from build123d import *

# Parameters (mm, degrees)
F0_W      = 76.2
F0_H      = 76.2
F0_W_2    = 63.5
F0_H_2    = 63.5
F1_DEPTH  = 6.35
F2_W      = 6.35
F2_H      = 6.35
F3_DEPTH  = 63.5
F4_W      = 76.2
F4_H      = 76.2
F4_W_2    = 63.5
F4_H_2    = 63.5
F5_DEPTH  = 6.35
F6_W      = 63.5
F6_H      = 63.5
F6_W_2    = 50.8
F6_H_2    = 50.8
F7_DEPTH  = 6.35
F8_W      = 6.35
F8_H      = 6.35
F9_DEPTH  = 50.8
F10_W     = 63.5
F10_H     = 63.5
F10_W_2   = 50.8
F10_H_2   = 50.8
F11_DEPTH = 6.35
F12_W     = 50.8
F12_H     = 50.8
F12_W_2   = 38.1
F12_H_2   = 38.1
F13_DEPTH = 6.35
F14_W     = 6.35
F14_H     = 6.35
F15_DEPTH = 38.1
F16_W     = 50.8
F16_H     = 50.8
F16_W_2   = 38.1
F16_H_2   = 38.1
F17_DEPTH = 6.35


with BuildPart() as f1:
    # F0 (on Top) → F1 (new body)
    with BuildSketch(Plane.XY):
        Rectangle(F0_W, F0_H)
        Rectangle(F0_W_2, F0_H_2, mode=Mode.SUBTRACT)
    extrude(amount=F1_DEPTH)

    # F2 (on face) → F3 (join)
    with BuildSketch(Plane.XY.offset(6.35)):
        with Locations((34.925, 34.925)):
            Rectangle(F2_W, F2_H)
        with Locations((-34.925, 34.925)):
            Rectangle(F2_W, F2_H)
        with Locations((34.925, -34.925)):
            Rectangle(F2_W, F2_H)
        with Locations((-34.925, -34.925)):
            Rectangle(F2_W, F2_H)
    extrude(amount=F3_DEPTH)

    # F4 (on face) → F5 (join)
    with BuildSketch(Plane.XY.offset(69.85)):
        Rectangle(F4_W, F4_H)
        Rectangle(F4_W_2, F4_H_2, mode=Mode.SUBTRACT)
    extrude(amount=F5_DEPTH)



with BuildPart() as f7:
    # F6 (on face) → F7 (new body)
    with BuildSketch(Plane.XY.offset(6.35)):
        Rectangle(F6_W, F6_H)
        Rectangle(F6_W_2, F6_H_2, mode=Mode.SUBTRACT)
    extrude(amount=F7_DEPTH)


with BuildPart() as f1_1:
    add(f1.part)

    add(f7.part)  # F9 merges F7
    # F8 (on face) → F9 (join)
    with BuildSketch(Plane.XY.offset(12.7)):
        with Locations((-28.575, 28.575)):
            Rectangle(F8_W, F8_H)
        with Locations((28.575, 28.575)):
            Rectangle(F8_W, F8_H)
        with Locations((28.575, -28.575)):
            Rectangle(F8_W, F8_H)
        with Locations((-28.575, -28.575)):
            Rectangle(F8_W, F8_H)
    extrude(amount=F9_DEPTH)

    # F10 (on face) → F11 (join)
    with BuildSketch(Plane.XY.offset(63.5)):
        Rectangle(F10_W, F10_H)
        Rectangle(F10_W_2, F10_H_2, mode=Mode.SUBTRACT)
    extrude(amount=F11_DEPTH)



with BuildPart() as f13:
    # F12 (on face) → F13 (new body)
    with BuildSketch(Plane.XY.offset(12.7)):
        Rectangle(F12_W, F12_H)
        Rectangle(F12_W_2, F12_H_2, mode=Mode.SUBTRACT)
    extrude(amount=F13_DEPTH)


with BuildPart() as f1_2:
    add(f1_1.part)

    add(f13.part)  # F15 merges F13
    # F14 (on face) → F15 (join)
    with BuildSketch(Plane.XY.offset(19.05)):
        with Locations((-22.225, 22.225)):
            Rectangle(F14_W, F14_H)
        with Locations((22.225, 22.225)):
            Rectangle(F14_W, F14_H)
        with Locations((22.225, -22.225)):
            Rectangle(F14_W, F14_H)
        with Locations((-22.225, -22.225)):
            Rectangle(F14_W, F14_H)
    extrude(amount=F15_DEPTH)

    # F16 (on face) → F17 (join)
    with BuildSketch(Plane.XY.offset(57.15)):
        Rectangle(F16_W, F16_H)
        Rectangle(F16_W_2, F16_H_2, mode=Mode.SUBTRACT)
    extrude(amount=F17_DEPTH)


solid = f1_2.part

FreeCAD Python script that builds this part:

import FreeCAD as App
import Part
import Sketcher

V = App.Vector
Q = App.Units.Quantity


def add_polygon(sketch, points):
    """Adds a closed chain of lines whose ends are joined by coincident constraints."""
    first, n = sketch.GeometryCount, len(points)
    for a, b in zip(points, points[1:] + points[:1]):
        sketch.addGeometry(Part.LineSegment(App.Vector(*a, 0), App.Vector(*b, 0)), False)
    for i in range(n):
        sketch.addConstraint(Sketcher.Constraint("Coincident", first + i, 2, first + (i + 1) % n, 1))

doc = App.newDocument("Part")
body = doc.addObject("PartDesign::Body", "Body")

# Sketch on XY plane
sketch1 = body.newObject("Sketcher::SketchObject", "Sketch")
sketch1.AttachmentSupport = (doc.getObject("XY_Plane"), [""])
sketch1.MapMode = "FlatFace"
add_polygon(sketch1, [(-38.1, 38.1), (-38.1, -38.1), (38.1, -38.1), (38.1, 38.1)])  # lines 0-3
add_polygon(sketch1, [(31.75, -31.75), (-31.75, -31.75), (-31.75, 31.75), (31.75, 31.75)])  # lines 4-7
sketch1.addConstraint(Sketcher.Constraint("Vertical", 0))
sketch1.addConstraint(Sketcher.Constraint("Horizontal", 1))
sketch1.addConstraint(Sketcher.Constraint("Vertical", 2))
sketch1.addConstraint(Sketcher.Constraint("Horizontal", 3))
sketch1.addConstraint(Sketcher.Constraint("Horizontal", 4))
sketch1.addConstraint(Sketcher.Constraint("Vertical", 5))
sketch1.addConstraint(Sketcher.Constraint("Horizontal", 6))
sketch1.addConstraint(Sketcher.Constraint("Vertical", 7))
sketch1.addConstraint(Sketcher.Constraint("Symmetric", 0, 2, 2, 2, -1, 1))
sketch1.addConstraint(Sketcher.Constraint("Symmetric", 4, 2, 6, 2, -1, 1))
sketch1.addConstraint(Sketcher.Constraint("Equal", 3, 0))
sketch1.addConstraint(Sketcher.Constraint("Equal", 6, 5))
sketch1.addConstraint(Sketcher.Constraint("DistanceX", 1, 1, 1, 2, Q("3 in")))
sketch1.addConstraint(Sketcher.Constraint("DistanceX", 4, 2, 4, 1, Q("2.5 in")))
pad1 = body.newObject("PartDesign::Pad", "Pad")
pad1.Profile = sketch1
pad1.Length = Q("0.25 in")

# Sketch on XY plane
sketch2 = body.newObject("Sketcher::SketchObject", "Sketch001")
sketch2.AttachmentSupport = (doc.getObject("XY_Plane"), [""])
sketch2.MapMode = "FlatFace"
sketch2.AttachmentOffset = App.Placement(V(0, 0, 0.25 * 25.4), App.Rotation())
add_polygon(sketch2, [(31.75, 38.1), (31.75, 31.75), (38.1, 31.75), (38.1, 38.1)])  # lines 0-3
add_polygon(sketch2, [(-38.1, 38.1), (-38.1, 31.75), (-31.75, 31.75), (-31.75, 38.1)])  # lines 4-7
add_polygon(sketch2, [(31.75, -31.75), (31.75, -38.1), (38.1, -38.1), (38.1, -31.75)])  # lines 8-11
add_polygon(sketch2, [(-38.1, -31.75), (-38.1, -38.1), (-31.75, -38.1), (-31.75, -31.75)])  # lines 12-15
sketch2.addConstraint(Sketcher.Constraint("Vertical", 0))
sketch2.addConstraint(Sketcher.Constraint("Horizontal", 1))
sketch2.addConstraint(Sketcher.Constraint("Vertical", 2))
sketch2.addConstraint(Sketcher.Constraint("Horizontal", 3))
sketch2.addConstraint(Sketcher.Constraint("Vertical", 4))
sketch2.addConstraint(Sketcher.Constraint("Horizontal", 5))
sketch2.addConstraint(Sketcher.Constraint("Vertical", 6))
sketch2.addConstraint(Sketcher.Constraint("Horizontal", 7))
sketch2.addConstraint(Sketcher.Constraint("Vertical", 8))
sketch2.addConstraint(Sketcher.Constraint("Horizontal", 9))
sketch2.addConstraint(Sketcher.Constraint("Vertical", 10))
sketch2.addConstraint(Sketcher.Constraint("Horizontal", 11))
sketch2.addConstraint(Sketcher.Constraint("Vertical", 12))
sketch2.addConstraint(Sketcher.Constraint("Horizontal", 13))
sketch2.addConstraint(Sketcher.Constraint("Vertical", 14))
sketch2.addConstraint(Sketcher.Constraint("Horizontal", 15))
sketch2.addConstraint(Sketcher.Constraint("Symmetric", 6, 2, 8, 2, -1, 1))
sketch2.addConstraint(Sketcher.Constraint("Symmetric", 4, 2, 10, 2, -1, 1))
sketch2.addConstraint(Sketcher.Constraint("Symmetric", 2, 2, 12, 2, -1, 1))
sketch2.addConstraint(Sketcher.Constraint("Symmetric", 0, 2, 14, 2, -1, 1))
sketch2.addConstraint(Sketcher.Constraint("Symmetric", 1, 2, 4, 2, -2))
sketch2.addConstraint(Sketcher.Constraint("Symmetric", 3, 2, 6, 2, -2))
sketch2.addConstraint(Sketcher.Constraint("Equal", 15, 0))
sketch2.addConstraint(Sketcher.Constraint("DistanceX", 4, 2, 1, 2, Q("3 in")))
sketch2.addConstraint(Sketcher.Constraint("DistanceY", 8, 2, 3, 2, Q("3 in")))
sketch2.addConstraint(Sketcher.Constraint("DistanceX", 1, 1, 1, 2, Q("0.25 in")))
pad2 = body.newObject("PartDesign::Pad", "Pad001")
pad2.Profile = sketch2
pad2.Length = Q("2.5 in")

# Sketch on XY plane
sketch3 = body.newObject("Sketcher::SketchObject", "Sketch002")
sketch3.AttachmentSupport = (doc.getObject("XY_Plane"), [""])
sketch3.MapMode = "FlatFace"
sketch3.AttachmentOffset = App.Placement(V(0, 0, 2.75 * 25.4), App.Rotation())
add_polygon(sketch3, [(-38.1, 38.1), (-38.1, -38.1), (38.1, -38.1), (38.1, 38.1)])  # lines 0-3
add_polygon(sketch3, [(31.75, -31.75), (-31.75, -31.75), (-31.75, 31.75), (31.75, 31.75)])  # lines 4-7
sketch3.addConstraint(Sketcher.Constraint("Vertical", 0))
sketch3.addConstraint(Sketcher.Constraint("Horizontal", 1))
sketch3.addConstraint(Sketcher.Constraint("Vertical", 2))
sketch3.addConstraint(Sketcher.Constraint("Horizontal", 3))
sketch3.addConstraint(Sketcher.Constraint("Horizontal", 4))
sketch3.addConstraint(Sketcher.Constraint("Vertical", 5))
sketch3.addConstraint(Sketcher.Constraint("Horizontal", 6))
sketch3.addConstraint(Sketcher.Constraint("Vertical", 7))
sketch3.addConstraint(Sketcher.Constraint("Symmetric", 0, 2, 2, 2, -1, 1))
sketch3.addConstraint(Sketcher.Constraint("Symmetric", 4, 2, 6, 2, -1, 1))
sketch3.addConstraint(Sketcher.Constraint("Equal", 3, 0))
sketch3.addConstraint(Sketcher.Constraint("Equal", 6, 5))
sketch3.addConstraint(Sketcher.Constraint("DistanceX", 1, 1, 1, 2, Q("3 in")))
sketch3.addConstraint(Sketcher.Constraint("DistanceX", 4, 2, 4, 1, Q("2.5 in")))
pad3 = body.newObject("PartDesign::Pad", "Pad002")
pad3.Profile = sketch3
pad3.Length = Q("0.25 in")
body2 = doc.addObject("PartDesign::Body", "Body001")

# Sketch on XY plane
sketch4 = body2.newObject("Sketcher::SketchObject", "Sketch003")
sketch4.AttachmentSupport = (doc.getObject("XY_Plane001"), [""])
sketch4.MapMode = "FlatFace"
sketch4.AttachmentOffset = App.Placement(V(0, 0, 0.25 * 25.4), App.Rotation())
add_polygon(sketch4, [(-31.75, 31.75), (-31.75, -31.75), (31.75, -31.75), (31.75, 31.75)])  # lines 0-3
add_polygon(sketch4, [(25.4, -25.4), (-25.4, -25.4), (-25.4, 25.4), (25.4, 25.4)])  # lines 4-7
sketch4.addConstraint(Sketcher.Constraint("Vertical", 0))
sketch4.addConstraint(Sketcher.Constraint("Horizontal", 1))
sketch4.addConstraint(Sketcher.Constraint("Vertical", 2))
sketch4.addConstraint(Sketcher.Constraint("Horizontal", 3))
sketch4.addConstraint(Sketcher.Constraint("Horizontal", 4))
sketch4.addConstraint(Sketcher.Constraint("Vertical", 5))
sketch4.addConstraint(Sketcher.Constraint("Horizontal", 6))
sketch4.addConstraint(Sketcher.Constraint("Vertical", 7))
sketch4.addConstraint(Sketcher.Constraint("Symmetric", 0, 2, 2, 2, -1, 1))
sketch4.addConstraint(Sketcher.Constraint("Symmetric", 4, 2, 6, 2, -1, 1))
sketch4.addConstraint(Sketcher.Constraint("Equal", 3, 0))
sketch4.addConstraint(Sketcher.Constraint("Equal", 6, 5))
sketch4.addConstraint(Sketcher.Constraint("DistanceX", 4, 2, 4, 1, Q("2 in")))
sketch4.addConstraint(Sketcher.Constraint("DistanceX", 1, 1, 1, 2, Q("2.5 in")))
pad4 = body2.newObject("PartDesign::Pad", "Pad003")
pad4.Profile = sketch4
pad4.Length = Q("0.25 in")
body.AllowCompound = True
doc.recompute()

boolean = body.newObject("PartDesign::Boolean", "Boolean")
boolean.Type = "Fuse"
boolean.addObjects([body2])

# Sketch on XY plane
sketch5 = body.newObject("Sketcher::SketchObject", "Sketch004")
sketch5.AttachmentSupport = (doc.getObject("XY_Plane"), [""])
sketch5.MapMode = "FlatFace"
sketch5.AttachmentOffset = App.Placement(V(0, 0, 0.5 * 25.4), App.Rotation())
add_polygon(sketch5, [(-31.75, 31.75), (-31.75, 25.4), (-25.4, 25.4), (-25.4, 31.75)])  # lines 0-3
add_polygon(sketch5, [(25.4, 31.75), (25.4, 25.4), (31.75, 25.4), (31.75, 31.75)])  # lines 4-7
add_polygon(sketch5, [(25.4, -25.4), (25.4, -31.75), (31.75, -31.75), (31.75, -25.4)])  # lines 8-11
add_polygon(sketch5, [(-31.75, -25.4), (-31.75, -31.75), (-25.4, -31.75), (-25.4, -25.4)])  # lines 12-15
sketch5.addConstraint(Sketcher.Constraint("Vertical", 0))
sketch5.addConstraint(Sketcher.Constraint("Horizontal", 1))
sketch5.addConstraint(Sketcher.Constraint("Vertical", 2))
sketch5.addConstraint(Sketcher.Constraint("Horizontal", 3))
sketch5.addConstraint(Sketcher.Constraint("Vertical", 4))
sketch5.addConstraint(Sketcher.Constraint("Horizontal", 5))
sketch5.addConstraint(Sketcher.Constraint("Vertical", 6))
sketch5.addConstraint(Sketcher.Constraint("Horizontal", 7))
sketch5.addConstraint(Sketcher.Constraint("Vertical", 8))
sketch5.addConstraint(Sketcher.Constraint("Horizontal", 9))
sketch5.addConstraint(Sketcher.Constraint("Vertical", 10))
sketch5.addConstraint(Sketcher.Constraint("Horizontal", 11))
sketch5.addConstraint(Sketcher.Constraint("Vertical", 12))
sketch5.addConstraint(Sketcher.Constraint("Horizontal", 13))
sketch5.addConstraint(Sketcher.Constraint("Vertical", 14))
sketch5.addConstraint(Sketcher.Constraint("Horizontal", 15))
sketch5.addConstraint(Sketcher.Constraint("Symmetric", 2, 2, 8, 2, -1, 1))
sketch5.addConstraint(Sketcher.Constraint("Symmetric", 0, 2, 10, 2, -1, 1))
sketch5.addConstraint(Sketcher.Constraint("Symmetric", 6, 2, 12, 2, -1, 1))
sketch5.addConstraint(Sketcher.Constraint("Symmetric", 4, 2, 14, 2, -1, 1))
sketch5.addConstraint(Sketcher.Constraint("Symmetric", 1, 2, 4, 2, -2))
sketch5.addConstraint(Sketcher.Constraint("Symmetric", 3, 2, 6, 2, -2))
sketch5.addConstraint(Sketcher.Constraint("Equal", 15, 0))
sketch5.addConstraint(Sketcher.Constraint("DistanceY", -1, 1, 0, 2, Q("1 in")))
sketch5.addConstraint(Sketcher.Constraint("DistanceX", 1, 2, -1, 1, Q("1 in")))
sketch5.addConstraint(Sketcher.Constraint("DistanceX", 1, 1, 1, 2, Q("0.25 in")))
pad5 = body.newObject("PartDesign::Pad", "Pad004")
pad5.Profile = sketch5
pad5.Length = Q("2 in")

# Sketch on XY plane
sketch6 = body.newObject("Sketcher::SketchObject", "Sketch005")
sketch6.AttachmentSupport = (doc.getObject("XY_Plane"), [""])
sketch6.MapMode = "FlatFace"
sketch6.AttachmentOffset = App.Placement(V(0, 0, 2.5 * 25.4), App.Rotation())
add_polygon(sketch6, [(-31.75, 31.75), (-31.75, -31.75), (31.75, -31.75), (31.75, 31.75)])  # lines 0-3
add_polygon(sketch6, [(25.4, -25.4), (-25.4, -25.4), (-25.4, 25.4), (25.4, 25.4)])  # lines 4-7
sketch6.addConstraint(Sketcher.Constraint("Vertical", 0))
sketch6.addConstraint(Sketcher.Constraint("Horizontal", 1))
sketch6.addConstraint(Sketcher.Constraint("Vertical", 2))
sketch6.addConstraint(Sketcher.Constraint("Horizontal", 3))
sketch6.addConstraint(Sketcher.Constraint("Horizontal", 4))
sketch6.addConstraint(Sketcher.Constraint("Vertical", 5))
sketch6.addConstraint(Sketcher.Constraint("Horizontal", 6))
sketch6.addConstraint(Sketcher.Constraint("Vertical", 7))
sketch6.addConstraint(Sketcher.Constraint("Symmetric", 0, 2, 2, 2, -1, 1))
sketch6.addConstraint(Sketcher.Constraint("Symmetric", 4, 2, 6, 2, -1, 1))
sketch6.addConstraint(Sketcher.Constraint("Equal", 3, 0))
sketch6.addConstraint(Sketcher.Constraint("Equal", 6, 5))
sketch6.addConstraint(Sketcher.Constraint("DistanceX", 4, 2, 4, 1, Q("2 in")))
sketch6.addConstraint(Sketcher.Constraint("DistanceX", 1, 1, 1, 2, Q("2.5 in")))
pad6 = body.newObject("PartDesign::Pad", "Pad005")
pad6.Profile = sketch6
pad6.Length = Q("0.25 in")
body3 = doc.addObject("PartDesign::Body", "Body002")

# Sketch on XY plane
sketch7 = body3.newObject("Sketcher::SketchObject", "Sketch006")
sketch7.AttachmentSupport = (doc.getObject("XY_Plane002"), [""])
sketch7.MapMode = "FlatFace"
sketch7.AttachmentOffset = App.Placement(V(0, 0, 0.5 * 25.4), App.Rotation())
add_polygon(sketch7, [(-25.4, 25.4), (-25.4, -25.4), (25.4, -25.4), (25.4, 25.4)])  # lines 0-3
add_polygon(sketch7, [(19.05, -19.05), (-19.05, -19.05), (-19.05, 19.05), (19.05, 19.05)])  # lines 4-7
sketch7.addConstraint(Sketcher.Constraint("Vertical", 0))
sketch7.addConstraint(Sketcher.Constraint("Horizontal", 1))
sketch7.addConstraint(Sketcher.Constraint("Vertical", 2))
sketch7.addConstraint(Sketcher.Constraint("Horizontal", 3))
sketch7.addConstraint(Sketcher.Constraint("Horizontal", 4))
sketch7.addConstraint(Sketcher.Constraint("Vertical", 5))
sketch7.addConstraint(Sketcher.Constraint("Horizontal", 6))
sketch7.addConstraint(Sketcher.Constraint("Vertical", 7))
sketch7.addConstraint(Sketcher.Constraint("Symmetric", 0, 2, 2, 2, -1, 1))
sketch7.addConstraint(Sketcher.Constraint("Symmetric", 4, 2, 6, 2, -1, 1))
sketch7.addConstraint(Sketcher.Constraint("Equal", 3, 0))
sketch7.addConstraint(Sketcher.Constraint("Equal", 6, 5))
sketch7.addConstraint(Sketcher.Constraint("DistanceX", 1, 1, 1, 2, Q("2 in")))
sketch7.addConstraint(Sketcher.Constraint("DistanceX", 4, 2, 4, 1, Q("1.5 in")))
pad7 = body3.newObject("PartDesign::Pad", "Pad006")
pad7.Profile = sketch7
pad7.Length = Q("0.25 in")
body.AllowCompound = True
doc.recompute()

boolean2 = body.newObject("PartDesign::Boolean", "Boolean001")
boolean2.Type = "Fuse"
boolean2.addObjects([body3])

# Sketch on XY plane
sketch8 = body.newObject("Sketcher::SketchObject", "Sketch007")
sketch8.AttachmentSupport = (doc.getObject("XY_Plane"), [""])
sketch8.MapMode = "FlatFace"
sketch8.AttachmentOffset = App.Placement(V(0, 0, 0.75 * 25.4), App.Rotation())
add_polygon(sketch8, [(-25.4, 25.4), (-25.4, 19.05), (-19.05, 19.05), (-19.05, 25.4)])  # lines 0-3
add_polygon(sketch8, [(19.05, 25.4), (19.05, 19.05), (25.4, 19.05), (25.4, 25.4)])  # lines 4-7
add_polygon(sketch8, [(19.05, -19.05), (19.05, -25.4), (25.4, -25.4), (25.4, -19.05)])  # lines 8-11
add_polygon(sketch8, [(-25.4, -19.05), (-25.4, -25.4), (-19.05, -25.4), (-19.05, -19.05)])  # lines 12-15
sketch8.addConstraint(Sketcher.Constraint("Vertical", 0))
sketch8.addConstraint(Sketcher.Constraint("Horizontal", 1))
sketch8.addConstraint(Sketcher.Constraint("Vertical", 2))
sketch8.addConstraint(Sketcher.Constraint("Horizontal", 3))
sketch8.addConstraint(Sketcher.Constraint("Vertical", 4))
sketch8.addConstraint(Sketcher.Constraint("Horizontal", 5))
sketch8.addConstraint(Sketcher.Constraint("Vertical", 6))
sketch8.addConstraint(Sketcher.Constraint("Horizontal", 7))
sketch8.addConstraint(Sketcher.Constraint("Vertical", 8))
sketch8.addConstraint(Sketcher.Constraint("Horizontal", 9))
sketch8.addConstraint(Sketcher.Constraint("Vertical", 10))
sketch8.addConstraint(Sketcher.Constraint("Horizontal", 11))
sketch8.addConstraint(Sketcher.Constraint("Vertical", 12))
sketch8.addConstraint(Sketcher.Constraint("Horizontal", 13))
sketch8.addConstraint(Sketcher.Constraint("Vertical", 14))
sketch8.addConstraint(Sketcher.Constraint("Horizontal", 15))
sketch8.addConstraint(Sketcher.Constraint("Symmetric", 2, 2, 8, 2, -1, 1))
sketch8.addConstraint(Sketcher.Constraint("Symmetric", 0, 2, 10, 2, -1, 1))
sketch8.addConstraint(Sketcher.Constraint("Symmetric", 6, 2, 12, 2, -1, 1))
sketch8.addConstraint(Sketcher.Constraint("Symmetric", 4, 2, 14, 2, -1, 1))
sketch8.addConstraint(Sketcher.Constraint("Symmetric", 1, 2, 4, 2, -2))
sketch8.addConstraint(Sketcher.Constraint("Symmetric", 3, 2, 6, 2, -2))
sketch8.addConstraint(Sketcher.Constraint("Equal", 15, 0))
sketch8.addConstraint(Sketcher.Constraint("DistanceX", 0, 2, -1, 1, Q("1 in")))
sketch8.addConstraint(Sketcher.Constraint("DistanceY", -1, 1, 2, 2, Q("1 in")))
sketch8.addConstraint(Sketcher.Constraint("DistanceX", 1, 1, 1, 2, Q("0.25 in")))
pad8 = body.newObject("PartDesign::Pad", "Pad007")
pad8.Profile = sketch8
pad8.Length = Q("1.5 in")

# Sketch on XY plane
sketch9 = body.newObject("Sketcher::SketchObject", "Sketch008")
sketch9.AttachmentSupport = (doc.getObject("XY_Plane"), [""])
sketch9.MapMode = "FlatFace"
sketch9.AttachmentOffset = App.Placement(V(0, 0, 2.25 * 25.4), App.Rotation())
add_polygon(sketch9, [(-25.4, 25.4), (-25.4, -25.4), (25.4, -25.4), (25.4, 25.4)])  # lines 0-3
add_polygon(sketch9, [(19.05, -19.05), (-19.05, -19.05), (-19.05, 19.05), (19.05, 19.05)])  # lines 4-7
sketch9.addConstraint(Sketcher.Constraint("Vertical", 0))
sketch9.addConstraint(Sketcher.Constraint("Horizontal", 1))
sketch9.addConstraint(Sketcher.Constraint("Vertical", 2))
sketch9.addConstraint(Sketcher.Constraint("Horizontal", 3))
sketch9.addConstraint(Sketcher.Constraint("Horizontal", 4))
sketch9.addConstraint(Sketcher.Constraint("Vertical", 5))
sketch9.addConstraint(Sketcher.Constraint("Horizontal", 6))
sketch9.addConstraint(Sketcher.Constraint("Vertical", 7))
sketch9.addConstraint(Sketcher.Constraint("Symmetric", 0, 2, 2, 2, -1, 1))
sketch9.addConstraint(Sketcher.Constraint("Symmetric", 4, 2, 6, 2, -1, 1))
sketch9.addConstraint(Sketcher.Constraint("Equal", 3, 0))
sketch9.addConstraint(Sketcher.Constraint("Equal", 6, 5))
sketch9.addConstraint(Sketcher.Constraint("DistanceX", 1, 1, 1, 2, Q("2 in")))
sketch9.addConstraint(Sketcher.Constraint("DistanceX", 4, 2, 4, 1, Q("1.5 in")))
pad9 = body.newObject("PartDesign::Pad", "Pad008")
pad9.Profile = sketch9
pad9.Length = Q("0.25 in")

doc.recompute()
